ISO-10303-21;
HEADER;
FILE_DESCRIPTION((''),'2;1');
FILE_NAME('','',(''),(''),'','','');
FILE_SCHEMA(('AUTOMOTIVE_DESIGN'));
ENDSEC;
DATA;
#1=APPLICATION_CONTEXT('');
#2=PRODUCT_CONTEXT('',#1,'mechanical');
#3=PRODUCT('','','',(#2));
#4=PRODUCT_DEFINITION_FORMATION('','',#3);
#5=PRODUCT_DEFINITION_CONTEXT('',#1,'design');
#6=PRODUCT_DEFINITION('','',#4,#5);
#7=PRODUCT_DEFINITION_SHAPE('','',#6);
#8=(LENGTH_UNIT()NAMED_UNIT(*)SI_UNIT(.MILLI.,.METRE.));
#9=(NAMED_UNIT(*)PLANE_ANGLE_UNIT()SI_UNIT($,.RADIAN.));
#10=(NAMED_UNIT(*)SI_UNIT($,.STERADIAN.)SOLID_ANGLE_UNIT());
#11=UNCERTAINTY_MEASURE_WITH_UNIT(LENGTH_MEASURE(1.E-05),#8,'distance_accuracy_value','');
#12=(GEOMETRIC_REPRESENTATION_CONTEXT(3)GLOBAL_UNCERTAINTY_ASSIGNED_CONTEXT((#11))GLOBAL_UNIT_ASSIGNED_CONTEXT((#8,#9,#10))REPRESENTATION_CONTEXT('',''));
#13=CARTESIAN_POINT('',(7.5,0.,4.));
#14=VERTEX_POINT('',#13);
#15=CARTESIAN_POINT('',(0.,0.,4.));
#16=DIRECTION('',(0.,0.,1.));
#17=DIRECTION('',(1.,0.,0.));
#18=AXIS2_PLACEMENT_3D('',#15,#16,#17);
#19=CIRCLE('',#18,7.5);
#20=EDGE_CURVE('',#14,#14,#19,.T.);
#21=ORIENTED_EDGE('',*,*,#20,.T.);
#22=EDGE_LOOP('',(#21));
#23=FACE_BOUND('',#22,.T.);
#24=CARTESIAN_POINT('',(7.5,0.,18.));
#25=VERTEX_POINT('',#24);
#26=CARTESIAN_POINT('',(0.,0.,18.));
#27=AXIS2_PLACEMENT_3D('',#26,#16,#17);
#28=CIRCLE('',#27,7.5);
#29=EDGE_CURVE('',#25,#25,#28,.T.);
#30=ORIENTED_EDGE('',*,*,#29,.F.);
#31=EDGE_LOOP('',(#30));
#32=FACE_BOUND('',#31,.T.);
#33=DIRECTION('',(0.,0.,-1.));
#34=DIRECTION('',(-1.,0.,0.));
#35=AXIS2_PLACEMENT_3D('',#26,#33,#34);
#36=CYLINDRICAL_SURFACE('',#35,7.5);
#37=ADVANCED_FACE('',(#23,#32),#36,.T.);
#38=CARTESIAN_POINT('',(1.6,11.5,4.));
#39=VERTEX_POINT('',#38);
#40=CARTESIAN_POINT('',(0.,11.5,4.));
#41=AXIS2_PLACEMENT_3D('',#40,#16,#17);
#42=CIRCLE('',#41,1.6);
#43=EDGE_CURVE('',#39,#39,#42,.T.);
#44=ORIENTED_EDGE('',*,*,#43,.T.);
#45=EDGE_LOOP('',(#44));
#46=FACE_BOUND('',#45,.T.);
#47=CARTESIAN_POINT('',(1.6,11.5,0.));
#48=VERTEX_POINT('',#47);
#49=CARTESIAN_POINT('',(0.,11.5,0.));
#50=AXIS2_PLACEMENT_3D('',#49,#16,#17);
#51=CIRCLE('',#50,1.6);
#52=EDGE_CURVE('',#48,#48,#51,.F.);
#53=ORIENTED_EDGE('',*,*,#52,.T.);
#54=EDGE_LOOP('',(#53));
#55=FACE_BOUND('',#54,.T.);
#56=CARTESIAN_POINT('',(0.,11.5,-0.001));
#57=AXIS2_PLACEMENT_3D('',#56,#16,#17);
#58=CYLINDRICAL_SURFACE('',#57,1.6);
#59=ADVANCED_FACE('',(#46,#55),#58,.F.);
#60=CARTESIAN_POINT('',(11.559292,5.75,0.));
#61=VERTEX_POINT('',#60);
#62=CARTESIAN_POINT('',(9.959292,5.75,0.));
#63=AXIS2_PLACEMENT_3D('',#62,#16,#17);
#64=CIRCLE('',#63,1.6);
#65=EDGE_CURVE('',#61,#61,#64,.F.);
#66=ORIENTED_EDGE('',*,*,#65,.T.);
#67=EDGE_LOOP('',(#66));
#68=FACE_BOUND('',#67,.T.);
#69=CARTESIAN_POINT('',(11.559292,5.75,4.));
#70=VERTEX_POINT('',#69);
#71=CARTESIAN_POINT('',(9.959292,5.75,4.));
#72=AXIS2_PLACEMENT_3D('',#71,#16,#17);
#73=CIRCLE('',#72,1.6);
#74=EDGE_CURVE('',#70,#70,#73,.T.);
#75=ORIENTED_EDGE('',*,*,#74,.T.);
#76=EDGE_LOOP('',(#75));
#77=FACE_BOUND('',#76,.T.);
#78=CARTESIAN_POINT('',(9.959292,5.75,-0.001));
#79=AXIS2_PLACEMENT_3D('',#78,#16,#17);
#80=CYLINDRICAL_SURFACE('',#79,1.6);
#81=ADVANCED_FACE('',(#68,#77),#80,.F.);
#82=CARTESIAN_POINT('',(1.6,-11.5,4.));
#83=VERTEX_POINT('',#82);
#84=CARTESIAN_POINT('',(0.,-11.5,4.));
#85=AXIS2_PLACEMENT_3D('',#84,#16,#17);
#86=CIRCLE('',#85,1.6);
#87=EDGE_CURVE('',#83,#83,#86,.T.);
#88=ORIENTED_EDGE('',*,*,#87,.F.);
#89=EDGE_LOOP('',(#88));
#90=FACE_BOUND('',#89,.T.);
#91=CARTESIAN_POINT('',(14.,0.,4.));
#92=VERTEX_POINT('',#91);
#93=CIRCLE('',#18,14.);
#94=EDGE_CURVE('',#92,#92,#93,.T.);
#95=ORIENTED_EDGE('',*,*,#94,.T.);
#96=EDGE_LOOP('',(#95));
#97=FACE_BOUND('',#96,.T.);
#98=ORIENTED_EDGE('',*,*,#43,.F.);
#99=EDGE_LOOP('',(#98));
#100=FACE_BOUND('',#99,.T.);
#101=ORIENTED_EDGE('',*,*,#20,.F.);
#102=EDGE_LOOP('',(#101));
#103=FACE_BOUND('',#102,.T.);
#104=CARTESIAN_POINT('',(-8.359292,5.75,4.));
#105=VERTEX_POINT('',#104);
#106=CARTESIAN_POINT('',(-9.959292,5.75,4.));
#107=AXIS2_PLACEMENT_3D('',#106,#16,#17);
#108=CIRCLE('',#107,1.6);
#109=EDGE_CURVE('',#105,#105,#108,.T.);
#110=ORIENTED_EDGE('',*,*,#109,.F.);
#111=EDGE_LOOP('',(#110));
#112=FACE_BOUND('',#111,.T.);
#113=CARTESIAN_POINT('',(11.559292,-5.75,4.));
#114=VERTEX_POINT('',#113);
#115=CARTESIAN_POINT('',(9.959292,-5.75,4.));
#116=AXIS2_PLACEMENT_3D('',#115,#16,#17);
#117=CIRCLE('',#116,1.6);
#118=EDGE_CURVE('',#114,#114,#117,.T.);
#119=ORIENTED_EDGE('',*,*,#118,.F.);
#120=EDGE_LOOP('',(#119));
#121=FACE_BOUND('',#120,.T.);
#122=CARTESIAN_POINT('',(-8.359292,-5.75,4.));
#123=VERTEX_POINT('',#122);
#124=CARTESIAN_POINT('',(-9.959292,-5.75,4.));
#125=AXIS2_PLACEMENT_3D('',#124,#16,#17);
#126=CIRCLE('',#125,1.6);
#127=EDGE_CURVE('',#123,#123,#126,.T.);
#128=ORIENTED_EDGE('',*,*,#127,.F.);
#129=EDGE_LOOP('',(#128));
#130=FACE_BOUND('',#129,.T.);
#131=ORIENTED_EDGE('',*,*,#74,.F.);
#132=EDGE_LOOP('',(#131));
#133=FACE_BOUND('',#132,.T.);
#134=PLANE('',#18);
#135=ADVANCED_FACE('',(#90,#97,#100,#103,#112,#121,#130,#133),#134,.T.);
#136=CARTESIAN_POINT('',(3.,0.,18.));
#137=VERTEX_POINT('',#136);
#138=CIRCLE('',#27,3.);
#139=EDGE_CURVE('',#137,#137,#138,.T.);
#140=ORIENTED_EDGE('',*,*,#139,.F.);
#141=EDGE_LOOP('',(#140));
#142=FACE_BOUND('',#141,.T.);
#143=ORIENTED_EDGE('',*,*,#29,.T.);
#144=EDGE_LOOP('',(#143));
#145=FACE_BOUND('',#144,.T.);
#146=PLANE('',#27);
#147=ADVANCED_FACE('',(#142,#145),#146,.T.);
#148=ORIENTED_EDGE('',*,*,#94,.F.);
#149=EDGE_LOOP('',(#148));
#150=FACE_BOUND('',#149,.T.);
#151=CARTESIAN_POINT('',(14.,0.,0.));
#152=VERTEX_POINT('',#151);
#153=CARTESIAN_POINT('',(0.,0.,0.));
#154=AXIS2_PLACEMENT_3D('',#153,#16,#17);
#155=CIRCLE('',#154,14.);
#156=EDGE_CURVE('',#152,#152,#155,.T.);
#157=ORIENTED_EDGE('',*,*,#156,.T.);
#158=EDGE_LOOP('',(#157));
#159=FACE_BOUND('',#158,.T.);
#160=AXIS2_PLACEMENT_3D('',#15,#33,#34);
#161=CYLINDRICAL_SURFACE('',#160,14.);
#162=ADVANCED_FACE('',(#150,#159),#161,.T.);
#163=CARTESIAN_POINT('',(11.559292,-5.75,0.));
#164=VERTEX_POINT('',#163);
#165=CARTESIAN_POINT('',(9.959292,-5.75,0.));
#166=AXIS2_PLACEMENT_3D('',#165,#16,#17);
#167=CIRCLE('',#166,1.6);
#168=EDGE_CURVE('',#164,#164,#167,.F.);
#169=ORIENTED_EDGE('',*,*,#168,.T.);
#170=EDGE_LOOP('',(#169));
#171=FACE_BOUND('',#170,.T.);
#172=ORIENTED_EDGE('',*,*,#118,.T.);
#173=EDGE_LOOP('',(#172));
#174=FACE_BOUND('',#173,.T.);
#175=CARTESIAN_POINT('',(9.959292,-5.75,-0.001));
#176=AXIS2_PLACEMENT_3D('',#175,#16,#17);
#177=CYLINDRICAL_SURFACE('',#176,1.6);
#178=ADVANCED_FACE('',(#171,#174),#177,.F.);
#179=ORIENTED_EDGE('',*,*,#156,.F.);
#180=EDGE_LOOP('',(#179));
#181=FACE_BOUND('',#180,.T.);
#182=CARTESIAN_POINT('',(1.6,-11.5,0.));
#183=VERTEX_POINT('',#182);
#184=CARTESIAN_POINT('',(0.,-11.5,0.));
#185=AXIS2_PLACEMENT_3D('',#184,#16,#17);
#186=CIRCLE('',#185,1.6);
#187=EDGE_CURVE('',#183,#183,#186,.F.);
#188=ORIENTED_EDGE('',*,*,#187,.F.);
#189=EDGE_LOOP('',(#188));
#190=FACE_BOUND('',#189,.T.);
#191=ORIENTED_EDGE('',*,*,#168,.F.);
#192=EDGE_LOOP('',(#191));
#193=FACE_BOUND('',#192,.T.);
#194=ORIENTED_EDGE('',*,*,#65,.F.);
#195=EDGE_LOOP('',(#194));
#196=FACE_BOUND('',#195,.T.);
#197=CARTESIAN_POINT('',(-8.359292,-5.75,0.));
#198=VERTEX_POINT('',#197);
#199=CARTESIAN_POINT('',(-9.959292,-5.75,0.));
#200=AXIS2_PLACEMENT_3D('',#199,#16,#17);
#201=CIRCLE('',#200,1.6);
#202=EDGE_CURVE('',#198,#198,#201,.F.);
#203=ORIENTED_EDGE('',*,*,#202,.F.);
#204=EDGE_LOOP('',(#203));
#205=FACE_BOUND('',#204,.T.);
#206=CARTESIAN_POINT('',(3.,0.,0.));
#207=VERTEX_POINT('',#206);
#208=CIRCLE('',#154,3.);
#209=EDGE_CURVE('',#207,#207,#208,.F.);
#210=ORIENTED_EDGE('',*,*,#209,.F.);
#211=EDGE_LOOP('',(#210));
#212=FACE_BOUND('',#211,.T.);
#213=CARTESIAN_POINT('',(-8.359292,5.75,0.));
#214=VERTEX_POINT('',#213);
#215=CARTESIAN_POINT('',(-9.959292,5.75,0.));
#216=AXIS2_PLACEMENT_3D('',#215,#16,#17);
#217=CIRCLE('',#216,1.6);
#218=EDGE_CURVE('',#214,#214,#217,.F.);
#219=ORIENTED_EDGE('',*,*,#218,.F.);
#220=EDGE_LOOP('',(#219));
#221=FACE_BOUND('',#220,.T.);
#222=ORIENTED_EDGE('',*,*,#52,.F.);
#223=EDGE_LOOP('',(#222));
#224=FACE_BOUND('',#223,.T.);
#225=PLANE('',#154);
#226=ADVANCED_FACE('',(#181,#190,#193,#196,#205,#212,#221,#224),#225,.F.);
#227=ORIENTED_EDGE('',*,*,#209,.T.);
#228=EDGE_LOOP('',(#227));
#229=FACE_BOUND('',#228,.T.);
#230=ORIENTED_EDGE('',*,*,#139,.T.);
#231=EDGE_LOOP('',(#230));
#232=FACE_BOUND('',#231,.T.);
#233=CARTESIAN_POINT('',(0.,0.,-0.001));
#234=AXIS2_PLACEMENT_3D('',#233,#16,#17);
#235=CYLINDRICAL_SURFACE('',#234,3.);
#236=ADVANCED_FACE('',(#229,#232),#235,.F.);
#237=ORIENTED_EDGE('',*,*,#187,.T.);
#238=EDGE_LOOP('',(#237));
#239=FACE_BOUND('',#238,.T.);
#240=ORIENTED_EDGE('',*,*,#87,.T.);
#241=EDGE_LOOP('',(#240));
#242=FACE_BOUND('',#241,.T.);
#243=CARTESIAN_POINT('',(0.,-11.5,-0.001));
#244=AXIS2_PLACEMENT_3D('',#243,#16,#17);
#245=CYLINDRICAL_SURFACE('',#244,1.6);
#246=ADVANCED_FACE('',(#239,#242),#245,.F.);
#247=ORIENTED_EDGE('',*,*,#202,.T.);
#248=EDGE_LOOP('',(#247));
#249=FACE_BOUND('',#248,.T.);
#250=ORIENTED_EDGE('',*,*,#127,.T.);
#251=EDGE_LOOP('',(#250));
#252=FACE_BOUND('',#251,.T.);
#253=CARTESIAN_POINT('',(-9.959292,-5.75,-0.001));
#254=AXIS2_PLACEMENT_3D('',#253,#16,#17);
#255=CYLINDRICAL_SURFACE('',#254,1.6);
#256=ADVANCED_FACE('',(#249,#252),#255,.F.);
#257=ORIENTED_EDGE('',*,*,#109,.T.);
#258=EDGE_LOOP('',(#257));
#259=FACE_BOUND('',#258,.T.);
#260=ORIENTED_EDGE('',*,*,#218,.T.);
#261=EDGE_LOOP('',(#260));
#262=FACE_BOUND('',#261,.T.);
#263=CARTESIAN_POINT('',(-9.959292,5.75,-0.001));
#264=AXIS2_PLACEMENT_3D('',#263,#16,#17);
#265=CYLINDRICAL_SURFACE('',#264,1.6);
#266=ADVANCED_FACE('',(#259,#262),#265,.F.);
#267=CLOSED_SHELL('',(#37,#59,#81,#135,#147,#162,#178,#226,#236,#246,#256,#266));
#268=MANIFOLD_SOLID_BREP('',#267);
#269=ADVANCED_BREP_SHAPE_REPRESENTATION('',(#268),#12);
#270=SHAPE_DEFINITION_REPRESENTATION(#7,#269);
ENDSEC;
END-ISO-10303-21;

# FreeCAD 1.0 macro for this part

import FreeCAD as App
import Part
import Sketcher
Q = App.Units.Quantity

doc = App.newDocument("Part")
body = doc.addObject("PartDesign::Body", "Body")

# Sketch on XY plane
sketch1 = body.newObject("Sketcher::SketchObject", "Sketch")
sketch1.AttachmentSupport = (doc.getObject("XY_Plane"), [""])
sketch1.MapMode = "FlatFace"
sketch1.addGeometry(Part.Circle(App.Vector(0, 0, 0), App.Vector(0, 0, 1), 14), False)
sketch1.addConstraint([
    Sketcher.Constraint("Coincident", 0, 3, -1, 1),
    Sketcher.Constraint("Diameter", 0, Q("28 mm")),
])
pad1 = body.newObject("PartDesign::Pad", "Pad")
pad1.Profile = sketch1
pad1.Length = 4

# Sketch on XY plane
sketch2 = body.newObject("Sketcher::SketchObject", "Sketch001")
sketch2.AttachmentSupport = (doc.getObject("XY_Plane"), [""])
sketch2.MapMode = "FlatFace"
sketch2.AttachmentOffset = App.Placement(App.Vector(0, 0, 4), App.Rotation())
sketch2.addGeometry(Part.Circle(App.Vector(0, 0, 0), App.Vector(0, 0, 1), 7.5), False)
sketch2.addConstraint([
    Sketcher.Constraint("Coincident", 0, 3, -1, 1),
    Sketcher.Constraint("Diameter", 0, Q("15 mm")),
])
pad2 = body.newObject("PartDesign::Pad", "Pad001")
pad2.Profile = sketch2
pad2.Length = 14

# Sketch on XY plane
sketch3 = body.newObject("Sketcher::SketchObject", "Sketch002")
sketch3.AttachmentSupport = (doc.getObject("XY_Plane"), [""])
sketch3.MapMode = "FlatFace"
sketch3.AttachmentOffset = App.Placement(App.Vector(0, 0, 18), App.Rotation())
sketch3.addGeometry(Part.Circle(App.Vector(0, 0, 0), App.Vector(0, 0, 1), 3), False)
sketch3.addConstraint([
    Sketcher.Constraint("Coincident", 0, 3, -1, 1),
    Sketcher.Constraint("Diameter", 0, Q("6 mm")),
])
pocket1 = body.newObject("PartDesign::Pocket", "Pocket")
pocket1.Profile = sketch3
pocket1.Type = "UpToFirst"

# Sketch on XY plane
sketch4 = body.newObject("Sketcher::SketchObject", "Sketch003")
sketch4.AttachmentSupport = (doc.getObject("XY_Plane"), [""])
sketch4.MapMode = "FlatFace"
sketch4.AttachmentOffset = App.Placement(App.Vector(0, 0, 4), App.Rotation())
sketch4.addGeometry(Part.Circle(App.Vector(0, 11.5, 0), App.Vector(0, 0, 1), 1.6), False)
sketch4.addConstraint([
    Sketcher.Constraint("PointOnObject", 0, 3, -2),
    Sketcher.Constraint("Diameter", 0, Q("3.2 mm")),
    Sketcher.Constraint("DistanceY", -1, 1, 0, 3, Q("11.5 mm")),
])
pocket2 = body.newObject("PartDesign::Pocket", "Pocket001")
pocket2.Profile = sketch4
pocket2.Type = "UpToFirst"

# Sketch on XY plane
sketch5 = body.newObject("Sketcher::SketchObject", "Sketch004")
sketch5.AttachmentSupport = (doc.getObject("XY_Plane"), [""])
sketch5.MapMode = "FlatFace"
sketch5.AttachmentOffset = App.Placement(App.Vector(0, 0, 4), App.Rotation())
sketch5.addGeometry(Part.Circle(App.Vector(9.959292, 5.75, 0), App.Vector(0, 0, 1), 1.6), False)
sketch5.addConstraint([
    Sketcher.Constraint("Diameter", 0, Q("3.2 mm")),
    Sketcher.Constraint("DistanceY", -1, 1, 0, 3, Q("5.75 mm")),
    Sketcher.Constraint("DistanceX", -1, 1, 0, 3, Q("9.959292 mm")),
])
pocket3 = body.newObject("PartDesign::Pocket", "Pocket002")
pocket3.Profile = sketch5
pocket3.Type = "UpToFirst"

# Sketch on XY plane
sketch6 = body.newObject("Sketcher::SketchObject", "Sketch005")
sketch6.AttachmentSupport = (doc.getObject("XY_Plane"), [""])
sketch6.MapMode = "FlatFace"
sketch6.AttachmentOffset = App.Placement(App.Vector(0, 0, 4), App.Rotation())
sketch6.addGeometry(Part.Circle(App.Vector(9.959292, -5.75, 0), App.Vector(0, 0, 1), 1.6), False)
sketch6.addConstraint([
    Sketcher.Constraint("Diameter", 0, Q("3.2 mm")),
    Sketcher.Constraint("DistanceY", 0, 3, -1, 1, Q("5.75 mm")),
    Sketcher.Constraint("DistanceX", -1, 1, 0, 3, Q("9.959292 mm")),
])
pocket4 = body.newObject("PartDesign::Pocket", "Pocket003")
pocket4.Profile = sketch6
pocket4.Type = "UpToFirst"

# Sketch on XY plane
sketch7 = body.newObject("Sketcher::SketchObject", "Sketch006")
sketch7.AttachmentSupport = (doc.getObject("XY_Plane"), [""])
sketch7.MapMode = "FlatFace"
sketch7.AttachmentOffset = App.Placement(App.Vector(0, 0, 4), App.Rotation())
sketch7.addGeometry(Part.Circle(App.Vector(0, -11.5, 0), App.Vector(0, 0, 1), 1.6), False)
sketch7.addConstraint([
    Sketcher.Constraint("PointOnObject", 0, 3, -2),
    Sketcher.Constraint("Diameter", 0, Q("3.2 mm")),
    Sketcher.Constraint("DistanceY", 0, 3, -1, 1, Q("11.5 mm")),
])
pocket5 = body.newObject("PartDesign::Pocket", "Pocket004")
pocket5.Profile = sketch7
pocket5.Type = "UpToFirst"

# Sketch on XY plane
sketch8 = body.newObject("Sketcher::SketchObject", "Sketch007")
sketch8.AttachmentSupport = (doc.getObject("XY_Plane"), [""])
sketch8.MapMode = "FlatFace"
sketch8.AttachmentOffset = App.Placement(App.Vector(0, 0, 4), App.Rotation())
sketch8.addGeometry(Part.Circle(App.Vector(-9.959292, -5.75, 0), App.Vector(0, 0, 1), 1.6), False)
sketch8.addConstraint([
    Sketcher.Constraint("Diameter", 0, Q("3.2 mm")),
    Sketcher.Constraint("DistanceY", 0, 3, -1, 1, Q("5.75 mm")),
    Sketcher.Constraint("DistanceX", 0, 3, -1, 1, Q("9.959292 mm")),
])
pocket6 = body.newObject("PartDesign::Pocket", "Pocket005")
pocket6.Profile = sketch8
pocket6.Type = "UpToFirst"

# Sketch on XY plane
sketch9 = body.newObject("Sketcher::SketchObject", "Sketch008")
sketch9.AttachmentSupport = (doc.getObject("XY_Plane"), [""])
sketch9.MapMode = "FlatFace"
sketch9.AttachmentOffset = App.Placement(App.Vector(0, 0, 4), App.Rotation())
sketch9.addGeometry(Part.Circle(App.Vector(-9.959292, 5.75, 0), App.Vector(0, 0, 1), 1.6), False)
sketch9.addConstraint([
    Sketcher.Constraint("Diameter", 0, Q("3.2 mm")),
    Sketcher.Constraint("DistanceY", -1, 1, 0, 3, Q("5.75 mm")),
    Sketcher.Constraint("DistanceX", 0, 3, -1, 1, Q("9.959292 mm")),
])
pocket7 = body.newObject("PartDesign::Pocket", "Pocket006")
pocket7.Profile = sketch9
pocket7.Type = "UpToFirst"

doc.recompute()
